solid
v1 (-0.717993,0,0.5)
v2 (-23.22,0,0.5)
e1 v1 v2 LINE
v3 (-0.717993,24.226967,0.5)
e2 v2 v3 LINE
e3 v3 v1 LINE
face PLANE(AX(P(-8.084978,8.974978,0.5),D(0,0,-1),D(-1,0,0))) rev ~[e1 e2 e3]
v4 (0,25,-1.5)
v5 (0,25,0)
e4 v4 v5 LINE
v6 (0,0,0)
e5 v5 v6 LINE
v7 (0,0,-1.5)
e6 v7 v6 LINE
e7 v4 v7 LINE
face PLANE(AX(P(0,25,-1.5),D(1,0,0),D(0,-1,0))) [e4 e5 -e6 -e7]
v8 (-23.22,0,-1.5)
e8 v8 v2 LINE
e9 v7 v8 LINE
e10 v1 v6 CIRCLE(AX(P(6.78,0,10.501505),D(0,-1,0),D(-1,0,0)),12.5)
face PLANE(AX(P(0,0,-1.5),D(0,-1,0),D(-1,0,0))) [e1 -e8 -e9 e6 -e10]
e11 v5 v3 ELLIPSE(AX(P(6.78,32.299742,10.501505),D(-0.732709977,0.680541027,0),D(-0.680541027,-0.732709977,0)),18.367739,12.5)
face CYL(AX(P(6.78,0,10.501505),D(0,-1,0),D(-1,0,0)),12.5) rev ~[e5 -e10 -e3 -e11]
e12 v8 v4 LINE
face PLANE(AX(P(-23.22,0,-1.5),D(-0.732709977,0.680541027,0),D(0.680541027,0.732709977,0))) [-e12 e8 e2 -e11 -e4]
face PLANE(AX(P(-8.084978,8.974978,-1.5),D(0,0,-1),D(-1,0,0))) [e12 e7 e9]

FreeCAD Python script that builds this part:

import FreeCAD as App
import Part
import Sketcher
from FreeCAD import Vector
Q = App.Units.Quantity


def add_polygon(sketch, points):
    """Adds a closed chain of lines whose ends are joined by coincident constraints."""
    first, n = sketch.GeometryCount, len(points)
    for a, b in zip(points, points[1:] + points[:1]):
        sketch.addGeometry(Part.LineSegment(App.Vector(*a, 0), App.Vector(*b, 0)), False)
    for i in range(n):
        sketch.addConstraint(Sketcher.Constraint("Coincident", first + i, 2, first + (i + 1) % n, 1))

doc = App.newDocument("Part")
body = doc.addObject("PartDesign::Body", "Body")

sketch1 = body.newObject("Sketcher::SketchObject", "Sketch")
sketch1.AttachmentSupport = (doc.getObject("XY_Plane"), [""])
sketch1.MapMode = "FlatFace"
sketch1.AttachmentOffset = App.Placement(Vector(0, 0, -1.5), App.Rotation())
add_polygon(sketch1, [(-23, 0), (0, 25), (0, 0)])
sketch1.addConstraint([
    Sketcher.Constraint("Vertical", 1),
    Sketcher.Constraint("Horizontal", 2),
    Sketcher.Constraint("Coincident", 1, 2, -1, 1),
    Sketcher.Constraint("DistanceY", 1, 2, 1, 1, Q("25 mm")),
    Sketcher.Constraint("DistanceX", 2, 2, 2, 1, Q("23.22 mm")),
])
pad1 = body.newObject("PartDesign::Pad", "Pad")
pad1.Profile = sketch1
pad1.Length = 2

sketch2 = body.newObject("Sketcher::SketchObject", "Sketch001")
sketch2.AttachmentSupport = (doc.getObject("XZ_Plane"), [""])
sketch2.MapMode = "FlatFace"
sketch2.addGeometry(Part.Circle(Vector(7, 11, 0), Vector(0, 0, 1), 12), False)
sketch2.addConstraint([
    Sketcher.Constraint("Diameter", 0, Q("25 mm")),
    Sketcher.Constraint("DistanceX", -1, 1, 0, 3, Q("6.78 mm")),
    Sketcher.Constraint("DistanceY", -1, 1, 0, 3, Q("10.501505 mm")),
])
pocket1 = body.newObject("PartDesign::Pocket", "Pocket")
pocket1.Profile = sketch2
pocket1.Length = 25

doc.recompute()
